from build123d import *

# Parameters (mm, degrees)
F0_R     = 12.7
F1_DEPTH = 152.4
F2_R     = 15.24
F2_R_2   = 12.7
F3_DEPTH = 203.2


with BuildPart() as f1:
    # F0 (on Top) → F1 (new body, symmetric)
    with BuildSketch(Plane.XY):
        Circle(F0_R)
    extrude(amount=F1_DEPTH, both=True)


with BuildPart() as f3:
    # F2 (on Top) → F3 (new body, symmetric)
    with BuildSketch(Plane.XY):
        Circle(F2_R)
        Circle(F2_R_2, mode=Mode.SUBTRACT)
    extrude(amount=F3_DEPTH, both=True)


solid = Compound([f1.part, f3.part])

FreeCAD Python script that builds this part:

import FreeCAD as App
import Part
import Sketcher
from FreeCAD import Vector
Q = App.Units.Quantity

doc = App.newDocument("Part")
params = doc.addObject("Spreadsheet::Sheet", "Params")
for row, (alias, value) in enumerate([
    ("sketch1_diameter", "1 in"),
    ("pad1_length", "12 in"),
    ("sketch2_diameter", "1 in"),
    ("sketch2_diameter2", "1.2 in"),
    ("pad2_length", "16 in"),
], start=1):
    params.set(f"A{row}", alias)
    params.set(f"B{row}", "=" + value)
    params.setAlias(f"B{row}", alias)

body = doc.addObject("PartDesign::Body", "Body")

sketch1 = body.newObject("Sketcher::SketchObject", "Sketch")
sketch1.AttachmentSupport = (doc.getObject("XY_Plane"), [""])
sketch1.MapMode = "FlatFace"
sketch1.addGeometry(Part.Circle(Vector(0, 0, 0), Vector(0, 0, 1), 13), False)
sketch1.addConstraint(Sketcher.Constraint("Coincident", 0, 3, -1, 1))
sketch1.addConstraint(Sketcher.Constraint("Diameter", 0, Q("1 in")))
sketch1.setExpression("Constraints[1]", "Params.sketch1_diameter")
pad1 = body.newObject("PartDesign::Pad", "Pad")
pad1.Profile = sketch1
pad1.setExpression("Length", "Params.pad1_length")
pad1.Midplane = True
body2 = doc.addObject("PartDesign::Body", "Body001")

sketch2 = body2.newObject("Sketcher::SketchObject", "Sketch001")
sketch2.AttachmentSupport = (doc.getObject("XY_Plane001"), [""])
sketch2.MapMode = "FlatFace"
sketch2.addGeometry(Part.Circle(Vector(0, 0, 0), Vector(0, 0, 1), 15), False)
sketch2.addGeometry(Part.Circle(Vector(0, 0, 0), Vector(0, 0, 1), 13), False)
sketch2.addConstraint(Sketcher.Constraint("Coincident", 0, 3, -1, 1))
sketch2.addConstraint(Sketcher.Constraint("Coincident", 1, 3, -1, 1))
sketch2.addConstraint(Sketcher.Constraint("Diameter", 1, Q("1 in")))
sketch2.addConstraint(Sketcher.Constraint("Diameter", 0, Q("1.2 in")))
sketch2.setExpression("Constraints[2]", "Params.sketch2_diameter")
sketch2.setExpression("Constraints[3]", "Params.sketch2_diameter2")
pad2 = body2.newObject("PartDesign::Pad", "Pad001")
pad2.Profile = sketch2
pad2.setExpression("Length", "Params.pad2_length")
pad2.Midplane = True

doc.recompute()
